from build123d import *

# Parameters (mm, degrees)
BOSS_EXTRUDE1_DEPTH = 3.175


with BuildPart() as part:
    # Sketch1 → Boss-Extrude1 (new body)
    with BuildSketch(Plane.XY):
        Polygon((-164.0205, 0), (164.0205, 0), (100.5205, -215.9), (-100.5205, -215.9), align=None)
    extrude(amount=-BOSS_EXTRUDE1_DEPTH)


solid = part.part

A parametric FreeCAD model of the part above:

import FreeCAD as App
import Part
import Sketcher

V = App.Vector
Q = App.Units.Quantity


def add_polygon(sketch, points):
    """Adds a closed chain of lines whose ends are joined by coincident constraints."""
    first, n = sketch.GeometryCount, len(points)
    for a, b in zip(points, points[1:] + points[:1]):
        sketch.addGeometry(Part.LineSegment(App.Vector(*a, 0), App.Vector(*b, 0)), False)
    for i in range(n):
        sketch.addConstraint(Sketcher.Constraint("Coincident", first + i, 2, first + (i + 1) % n, 1))

doc = App.newDocument("Part")
body = doc.addObject("PartDesign::Body", "Body")

# Sketch on XY plane
sketch1 = body.newObject("Sketcher::SketchObject", "Sketch")
sketch1.AttachmentSupport = (doc.getObject("XY_Plane"), [""])
sketch1.MapMode = "FlatFace"
add_polygon(sketch1, [(164, 0), (-164, 0), (-101, -216), (101, -216)])  # lines 0-3
sketch1.addConstraint(Sketcher.Constraint("Horizontal", 0))
sketch1.addConstraint(Sketcher.Constraint("Horizontal", 2))
sketch1.addConstraint(Sketcher.Constraint("Symmetric", 0, 2, 3, 2, -1, 1))
sketch1.addConstraint(Sketcher.Constraint("Equal", 1, 3))
sketch1.addConstraint(Sketcher.Constraint("DistanceY", 1, 2, -1, 1, Q("8.5 in")))
sketch1.addConstraint(Sketcher.Constraint("DistanceX", 0, 2, 1, 2, Q("2.5 in")))
sketch1.addConstraint(Sketcher.Constraint("DistanceX", 0, 2, 0, 1, Q("12.915 in")))
pad1 = body.newObject("PartDesign::Pad", "Pad")
pad1.Profile = sketch1
pad1.Length = Q("0.125 in")
pad1.Reversed = True

doc.recompute()
